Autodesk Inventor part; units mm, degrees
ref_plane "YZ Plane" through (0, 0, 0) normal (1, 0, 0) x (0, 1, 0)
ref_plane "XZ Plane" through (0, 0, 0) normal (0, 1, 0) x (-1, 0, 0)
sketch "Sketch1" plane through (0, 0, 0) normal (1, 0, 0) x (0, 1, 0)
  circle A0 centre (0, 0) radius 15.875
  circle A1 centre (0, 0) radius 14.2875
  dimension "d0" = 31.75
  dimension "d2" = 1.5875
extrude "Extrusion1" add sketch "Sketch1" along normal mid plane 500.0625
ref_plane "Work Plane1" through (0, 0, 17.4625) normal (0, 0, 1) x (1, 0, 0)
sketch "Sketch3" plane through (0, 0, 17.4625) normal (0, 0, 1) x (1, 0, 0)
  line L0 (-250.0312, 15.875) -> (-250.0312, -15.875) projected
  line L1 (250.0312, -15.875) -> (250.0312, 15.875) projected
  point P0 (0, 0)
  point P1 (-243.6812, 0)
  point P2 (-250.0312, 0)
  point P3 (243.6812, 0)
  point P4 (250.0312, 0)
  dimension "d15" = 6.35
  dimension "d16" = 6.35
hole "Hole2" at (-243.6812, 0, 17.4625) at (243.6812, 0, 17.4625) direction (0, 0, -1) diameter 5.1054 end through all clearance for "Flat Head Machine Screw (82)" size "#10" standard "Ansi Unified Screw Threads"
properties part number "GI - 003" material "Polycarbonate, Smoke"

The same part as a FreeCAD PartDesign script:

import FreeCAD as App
import Part
import Sketcher
from FreeCAD import Vector
Q = App.Units.Quantity

doc = App.newDocument("Part")
body = doc.addObject("PartDesign::Body", "Body")

sketch1 = body.newObject("Sketcher::SketchObject", "Sketch")
sketch1.AttachmentSupport = (doc.getObject("YZ_Plane"), [""])
sketch1.MapMode = "FlatFace"
sketch1.addGeometry([
    Part.Circle(Vector(0, 0, 0), Vector(0, 0, 1), 16),
    Part.Circle(Vector(0, 0, 0), Vector(0, 0, 1), 14),
], False)
sketch1.addConstraint([
    Sketcher.Constraint("Coincident", 0, 3, -1, 1),
    Sketcher.Constraint("Coincident", 1, 3, -1, 1),
    Sketcher.Constraint("Diameter", 0, Q("1.25 in")),
    Sketcher.Constraint("Diameter", 1, Q("1.125 in")),
])
pad1 = body.newObject("PartDesign::Pad", "Pad")
pad1.Profile = sketch1
pad1.Length = Q("19.6875 in")
pad1.Midplane = True

sketch2 = body.newObject("Sketcher::SketchObject", "Sketch001")
sketch2.AttachmentSupport = (doc.getObject("XY_Plane"), [""])
sketch2.MapMode = "FlatFace"
sketch2.AttachmentOffset = App.Placement(Vector(0, 0, 0.6875 * 25.4), App.Rotation())
sketch2.addGeometry([
    Part.Circle(Vector(-243.7, 0, 0), Vector(0, 0, 1), 2.6),
    Part.Circle(Vector(243.7, 0, 0), Vector(0, 0, 1), 2.6),
], False)
sketch2.addConstraint([
    Sketcher.Constraint("Equal", 0, 1),
    Sketcher.Constraint("Symmetric", 0, 3, 1, 3, -1, 1),
    Sketcher.Constraint("PointOnObject", 0, 3, -1),
    Sketcher.Constraint("Diameter", 0, Q("0.201 in")),
    Sketcher.Constraint("DistanceX", 0, 3, -1, 1, Q("9.593748 in")),
])
doc.recompute()
hole = body.newObject("PartDesign::Hole", "Hole")
hole.Profile = sketch2
hole.ThreadType = "None"
hole.Diameter = Q("0.201 in")
hole.DepthType = "ThroughAll"

doc.recompute()
